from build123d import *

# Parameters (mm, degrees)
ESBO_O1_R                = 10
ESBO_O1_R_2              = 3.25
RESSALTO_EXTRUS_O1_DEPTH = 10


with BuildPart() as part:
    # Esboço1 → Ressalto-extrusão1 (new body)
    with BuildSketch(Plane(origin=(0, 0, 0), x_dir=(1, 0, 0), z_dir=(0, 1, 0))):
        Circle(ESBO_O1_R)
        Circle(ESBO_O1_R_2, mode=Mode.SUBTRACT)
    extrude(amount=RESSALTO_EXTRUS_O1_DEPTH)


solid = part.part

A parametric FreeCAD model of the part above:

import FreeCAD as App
import Part
import Sketcher
Q = App.Units.Quantity

doc = App.newDocument("Part")
body = doc.addObject("PartDesign::Body", "Body")

# Sketch on XZ plane
sketch1 = body.newObject("Sketcher::SketchObject", "Sketch")
sketch1.AttachmentSupport = (doc.getObject("XZ_Plane"), [""])
sketch1.MapMode = "FlatFace"
sketch1.addGeometry([
    Part.Circle(App.Vector(0, 0, 0), App.Vector(0, 0, 1), 10),
    Part.Circle(App.Vector(0, 0, 0), App.Vector(0, 0, 1), 3.25),
], False)
sketch1.addConstraint([
    Sketcher.Constraint("Coincident", 0, 3, -1, 1),
    Sketcher.Constraint("Coincident", 1, 3, -1, 1),
    Sketcher.Constraint("Diameter", 0, Q("20 mm")),
    Sketcher.Constraint("Diameter", 1, Q("6.5 mm")),
])
pad1 = body.newObject("PartDesign::Pad", "Pad")
pad1.Profile = sketch1
pad1.Length = 10
pad1.Reversed = True

doc.recompute()
